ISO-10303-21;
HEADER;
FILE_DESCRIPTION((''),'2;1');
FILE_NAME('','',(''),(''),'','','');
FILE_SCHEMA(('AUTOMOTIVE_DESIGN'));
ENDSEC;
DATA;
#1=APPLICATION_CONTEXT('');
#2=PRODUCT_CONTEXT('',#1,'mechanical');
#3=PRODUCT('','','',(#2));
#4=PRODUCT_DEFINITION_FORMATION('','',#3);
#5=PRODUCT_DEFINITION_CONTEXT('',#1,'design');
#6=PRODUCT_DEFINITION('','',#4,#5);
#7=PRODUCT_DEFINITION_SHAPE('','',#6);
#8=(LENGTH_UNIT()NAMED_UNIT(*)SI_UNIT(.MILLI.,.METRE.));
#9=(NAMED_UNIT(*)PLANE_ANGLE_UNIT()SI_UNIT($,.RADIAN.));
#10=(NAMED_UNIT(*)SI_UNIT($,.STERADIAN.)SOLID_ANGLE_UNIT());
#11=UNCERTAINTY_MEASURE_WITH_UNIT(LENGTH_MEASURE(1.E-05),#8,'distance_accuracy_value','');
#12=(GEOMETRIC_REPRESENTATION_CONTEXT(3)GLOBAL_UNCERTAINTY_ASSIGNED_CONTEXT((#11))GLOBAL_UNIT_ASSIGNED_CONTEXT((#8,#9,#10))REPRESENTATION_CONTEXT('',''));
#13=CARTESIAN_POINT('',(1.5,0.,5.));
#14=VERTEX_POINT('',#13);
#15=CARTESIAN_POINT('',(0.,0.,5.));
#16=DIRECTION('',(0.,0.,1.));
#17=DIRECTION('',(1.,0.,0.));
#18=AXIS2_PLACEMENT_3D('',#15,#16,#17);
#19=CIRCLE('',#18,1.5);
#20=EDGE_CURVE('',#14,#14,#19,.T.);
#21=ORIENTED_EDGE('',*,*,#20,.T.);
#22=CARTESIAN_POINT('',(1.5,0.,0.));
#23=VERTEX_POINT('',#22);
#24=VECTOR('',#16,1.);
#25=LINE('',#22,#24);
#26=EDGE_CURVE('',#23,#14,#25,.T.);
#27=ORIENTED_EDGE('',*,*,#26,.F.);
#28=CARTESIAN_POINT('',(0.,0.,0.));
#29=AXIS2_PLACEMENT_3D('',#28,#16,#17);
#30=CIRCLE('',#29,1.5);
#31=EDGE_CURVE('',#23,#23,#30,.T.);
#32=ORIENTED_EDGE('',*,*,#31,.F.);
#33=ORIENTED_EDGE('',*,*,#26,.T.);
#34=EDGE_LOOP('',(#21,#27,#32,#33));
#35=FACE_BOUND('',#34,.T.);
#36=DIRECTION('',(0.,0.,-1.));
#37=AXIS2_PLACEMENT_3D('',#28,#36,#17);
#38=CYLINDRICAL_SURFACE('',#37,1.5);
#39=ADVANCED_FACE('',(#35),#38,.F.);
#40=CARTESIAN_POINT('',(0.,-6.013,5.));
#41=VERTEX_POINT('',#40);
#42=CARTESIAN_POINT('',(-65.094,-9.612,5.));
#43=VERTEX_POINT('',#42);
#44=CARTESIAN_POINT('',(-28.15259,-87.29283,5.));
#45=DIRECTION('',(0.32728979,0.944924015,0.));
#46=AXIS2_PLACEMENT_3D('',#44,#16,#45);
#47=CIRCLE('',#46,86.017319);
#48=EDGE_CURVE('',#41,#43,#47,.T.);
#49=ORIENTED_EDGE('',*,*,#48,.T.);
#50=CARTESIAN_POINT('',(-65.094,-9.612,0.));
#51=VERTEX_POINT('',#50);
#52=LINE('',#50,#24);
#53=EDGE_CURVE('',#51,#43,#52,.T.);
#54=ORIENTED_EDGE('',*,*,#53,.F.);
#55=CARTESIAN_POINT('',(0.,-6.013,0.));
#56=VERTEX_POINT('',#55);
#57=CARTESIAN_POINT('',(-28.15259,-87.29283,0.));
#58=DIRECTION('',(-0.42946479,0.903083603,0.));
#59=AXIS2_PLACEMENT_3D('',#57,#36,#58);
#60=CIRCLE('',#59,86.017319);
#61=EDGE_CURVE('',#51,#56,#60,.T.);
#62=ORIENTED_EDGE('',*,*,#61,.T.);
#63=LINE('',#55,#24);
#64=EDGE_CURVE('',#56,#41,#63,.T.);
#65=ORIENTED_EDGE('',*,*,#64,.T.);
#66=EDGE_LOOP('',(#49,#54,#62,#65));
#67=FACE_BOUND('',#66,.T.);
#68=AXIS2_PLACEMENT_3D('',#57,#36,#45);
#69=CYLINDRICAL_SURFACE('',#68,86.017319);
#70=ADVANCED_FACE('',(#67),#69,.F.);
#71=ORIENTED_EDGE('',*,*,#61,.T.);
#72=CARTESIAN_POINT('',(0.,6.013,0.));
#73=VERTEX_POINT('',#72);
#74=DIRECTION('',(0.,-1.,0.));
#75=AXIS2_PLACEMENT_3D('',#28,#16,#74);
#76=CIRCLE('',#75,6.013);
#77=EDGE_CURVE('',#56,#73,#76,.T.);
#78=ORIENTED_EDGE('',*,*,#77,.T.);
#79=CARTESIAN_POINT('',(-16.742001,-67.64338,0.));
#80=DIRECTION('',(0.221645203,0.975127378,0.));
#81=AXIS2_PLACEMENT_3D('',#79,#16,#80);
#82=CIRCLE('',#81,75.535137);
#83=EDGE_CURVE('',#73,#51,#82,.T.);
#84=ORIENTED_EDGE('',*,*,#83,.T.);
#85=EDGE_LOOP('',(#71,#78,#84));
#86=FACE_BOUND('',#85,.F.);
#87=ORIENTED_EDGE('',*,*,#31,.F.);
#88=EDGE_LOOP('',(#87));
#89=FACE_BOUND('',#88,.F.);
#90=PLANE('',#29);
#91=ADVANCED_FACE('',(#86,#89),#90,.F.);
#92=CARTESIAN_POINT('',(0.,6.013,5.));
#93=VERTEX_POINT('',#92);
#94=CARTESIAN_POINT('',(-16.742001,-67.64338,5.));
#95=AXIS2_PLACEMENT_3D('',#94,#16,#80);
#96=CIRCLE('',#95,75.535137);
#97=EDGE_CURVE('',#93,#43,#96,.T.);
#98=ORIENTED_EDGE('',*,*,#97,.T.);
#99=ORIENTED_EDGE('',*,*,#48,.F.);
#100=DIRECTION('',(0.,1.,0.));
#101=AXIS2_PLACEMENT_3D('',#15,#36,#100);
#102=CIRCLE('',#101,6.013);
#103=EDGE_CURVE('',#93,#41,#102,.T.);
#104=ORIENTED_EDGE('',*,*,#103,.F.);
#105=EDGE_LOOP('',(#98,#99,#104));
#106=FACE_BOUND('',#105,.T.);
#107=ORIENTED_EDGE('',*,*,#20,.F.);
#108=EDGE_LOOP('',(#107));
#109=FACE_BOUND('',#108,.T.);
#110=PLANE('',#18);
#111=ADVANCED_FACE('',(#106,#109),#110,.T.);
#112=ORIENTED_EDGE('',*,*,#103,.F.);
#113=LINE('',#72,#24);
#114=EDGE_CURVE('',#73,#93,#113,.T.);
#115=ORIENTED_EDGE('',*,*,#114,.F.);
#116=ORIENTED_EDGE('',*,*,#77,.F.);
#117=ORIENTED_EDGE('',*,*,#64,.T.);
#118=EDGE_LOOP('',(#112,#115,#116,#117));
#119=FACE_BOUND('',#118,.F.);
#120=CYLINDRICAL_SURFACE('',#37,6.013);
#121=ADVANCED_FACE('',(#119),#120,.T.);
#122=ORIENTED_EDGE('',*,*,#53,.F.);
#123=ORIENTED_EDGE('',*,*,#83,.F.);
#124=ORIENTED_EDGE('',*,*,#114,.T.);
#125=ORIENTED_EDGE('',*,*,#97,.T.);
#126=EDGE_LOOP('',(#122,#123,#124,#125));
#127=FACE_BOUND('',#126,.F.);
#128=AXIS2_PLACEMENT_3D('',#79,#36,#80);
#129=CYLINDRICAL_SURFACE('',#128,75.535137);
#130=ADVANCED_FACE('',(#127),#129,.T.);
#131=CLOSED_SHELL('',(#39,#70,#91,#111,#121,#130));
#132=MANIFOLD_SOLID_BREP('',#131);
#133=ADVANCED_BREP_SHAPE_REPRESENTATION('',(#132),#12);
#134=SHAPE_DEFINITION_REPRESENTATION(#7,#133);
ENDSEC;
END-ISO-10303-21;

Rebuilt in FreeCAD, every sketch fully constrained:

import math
import FreeCAD as App
import Part
import Sketcher

V = App.Vector

doc = App.newDocument("Part")
body = doc.addObject("PartDesign::Body", "Body")

# Sketch on XY plane
sketch1 = doc.addObject("Sketcher::SketchObject", "Sketch")
body.addObject(sketch1)
sketch1.AttachmentSupport = (doc.XY_Plane, [""])
sketch1.MapMode = "FlatFace"
sketch1.addGeometry([
    Part.ArcOfCircle(Part.Circle(V(0, 0, 0), V(0, 0, 1), 6), math.radians(-90), math.radians(90)),
    Part.ArcOfCircle(Part.Circle(V(-16.7, -67.6, 0), V(0, 0, 1), 75.5), math.radians(77), math.radians(130)),
    Part.ArcOfCircle(Part.Circle(V(-28.2, -87.3, 0), V(0, 0, 1), 86), math.radians(71), math.radians(115)),
    Part.Circle(V(0, 0, 0), V(0, 0, 1), 1.5),
], False)
sketch1.addConstraint([
    Sketcher.Constraint("Coincident", 0, 2, 1, 1),
    Sketcher.Constraint("Coincident", 1, 2, 2, 2),
    Sketcher.Constraint("Coincident", 2, 1, 0, 1),
    Sketcher.Constraint("Coincident", 0, 3, -1, 1),
    Sketcher.Constraint("Coincident", 3, 3, -1, 1),
    Sketcher.Constraint("PointOnObject", 0, 2, -2),
    Sketcher.Constraint("PointOnObject", 2, 1, -2),
    Sketcher.Constraint("Diameter", 3, 3.0),
    Sketcher.Constraint("Radius", 0, 6.013),
    Sketcher.Constraint("Radius", 1, 75.5353),
    Sketcher.Constraint("Radius", 2, 86.0174),
    Sketcher.Constraint("DistanceX", 1, 3, -1, 1, 16.742),
    Sketcher.Constraint("DistanceY", 2, 3, -1, 1, 87.293),
])
pad1 = doc.addObject("PartDesign::Pad", "Pad")
body.addObject(pad1)
pad1.Profile = sketch1
pad1.Length = 5

doc.recompute()
